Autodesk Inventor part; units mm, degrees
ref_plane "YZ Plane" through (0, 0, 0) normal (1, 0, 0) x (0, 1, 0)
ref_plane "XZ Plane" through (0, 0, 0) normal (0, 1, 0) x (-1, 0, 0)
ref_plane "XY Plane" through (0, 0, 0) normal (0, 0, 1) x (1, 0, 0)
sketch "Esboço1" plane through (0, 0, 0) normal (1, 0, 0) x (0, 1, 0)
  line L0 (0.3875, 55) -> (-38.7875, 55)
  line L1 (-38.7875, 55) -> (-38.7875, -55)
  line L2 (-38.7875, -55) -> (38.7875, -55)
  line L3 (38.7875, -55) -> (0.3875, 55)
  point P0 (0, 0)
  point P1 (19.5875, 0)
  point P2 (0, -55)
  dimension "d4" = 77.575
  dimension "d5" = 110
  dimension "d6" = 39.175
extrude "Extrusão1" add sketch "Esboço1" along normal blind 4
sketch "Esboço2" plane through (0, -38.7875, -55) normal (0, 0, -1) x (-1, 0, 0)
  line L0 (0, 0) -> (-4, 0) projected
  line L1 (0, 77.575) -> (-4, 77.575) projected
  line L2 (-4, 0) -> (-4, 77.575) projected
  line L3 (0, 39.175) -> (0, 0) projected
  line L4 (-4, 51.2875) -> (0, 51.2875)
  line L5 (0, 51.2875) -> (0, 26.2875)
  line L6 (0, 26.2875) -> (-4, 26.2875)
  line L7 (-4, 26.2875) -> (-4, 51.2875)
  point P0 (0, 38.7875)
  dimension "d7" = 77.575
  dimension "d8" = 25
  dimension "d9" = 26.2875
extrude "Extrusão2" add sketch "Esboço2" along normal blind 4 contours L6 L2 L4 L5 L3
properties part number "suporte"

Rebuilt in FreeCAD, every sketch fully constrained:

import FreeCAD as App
import Part
import Sketcher
from FreeCAD import Vector
Q = App.Units.Quantity


def add_polygon(sketch, points):
    """Adds a closed chain of lines whose ends are joined by coincident constraints."""
    first, n = sketch.GeometryCount, len(points)
    for a, b in zip(points, points[1:] + points[:1]):
        sketch.addGeometry(Part.LineSegment(App.Vector(*a, 0), App.Vector(*b, 0)), False)
    for i in range(n):
        sketch.addConstraint(Sketcher.Constraint("Coincident", first + i, 2, first + (i + 1) % n, 1))

doc = App.newDocument("Part")
params = doc.addObject("Spreadsheet::Sheet", "Params")
for row, (alias, value) in enumerate([
    ("sketch1_height", "110 mm"),
    ("pad1_length", "4 mm"),
    ("sketch2_height", "25 mm"),
    ("sketch2_width", "4 mm"),
    ("pad2_length", "4 mm"),
], start=1):
    params.set(f"A{row}", alias)
    params.set(f"B{row}", "=" + value)
    params.setAlias(f"B{row}", alias)

body = doc.addObject("PartDesign::Body", "Body")

# Sketch on YZ plane
sketch1 = body.newObject("Sketcher::SketchObject", "Sketch")
sketch1.AttachmentSupport = (doc.getObject("YZ_Plane"), [""])
sketch1.MapMode = "FlatFace"
add_polygon(sketch1, [(39, -55), (0, 55), (-39, 55), (-39, -55)])  # lines 0-3
sketch1.addConstraint([
    Sketcher.Constraint("Horizontal", 1),
    Sketcher.Constraint("Vertical", 2),
    Sketcher.Constraint("Horizontal", 3),
    Sketcher.Constraint("Symmetric", 1, 2, 3, 2, -1, 1),
    Sketcher.Constraint("DistanceY", 2, 2, 2, 1, Q("110 mm")),
    Sketcher.Constraint("DistanceX", 1, 2, 1, 1, Q("39.175 mm")),
    Sketcher.Constraint("DistanceX", 3, 1, 3, 2, Q("77.575 mm")),
])
sketch1.setExpression("Constraints[8]", "Params.sketch1_height")
pad1 = body.newObject("PartDesign::Pad", "Pad")
pad1.Profile = sketch1
pad1.setExpression("Length", "Params.pad1_length")

# Sketch on XY plane
sketch2 = body.newObject("Sketcher::SketchObject", "Sketch001")
sketch2.AttachmentSupport = (doc.getObject("XY_Plane"), [""])
sketch2.MapMode = "FlatFace"
sketch2.AttachmentOffset = App.Placement(Vector(0, 0, -55), App.Rotation())
add_polygon(sketch2, [(4, -12.5), (0, -12.5), (0, 12.5), (4, 12.5)])  # lines 0-3
sketch2.addConstraint([
    Sketcher.Constraint("Horizontal", 0),
    Sketcher.Constraint("Vertical", 1),
    Sketcher.Constraint("Horizontal", 2),
    Sketcher.Constraint("Vertical", 3),
    Sketcher.Constraint("Symmetric", 0, 2, 1, 2, -1, 1),
    Sketcher.Constraint("DistanceY", 1, 1, 1, 2, Q("25 mm")),
    Sketcher.Constraint("DistanceX", 0, 2, 0, 1, Q("4 mm")),
])
sketch2.setExpression("Constraints[9]", "Params.sketch2_height")
sketch2.setExpression("Constraints[10]", "Params.sketch2_width")
pad2 = body.newObject("PartDesign::Pad", "Pad001")
pad2.Profile = sketch2
pad2.setExpression("Length", "Params.pad2_length")
pad2.Reversed = True

doc.recompute()
